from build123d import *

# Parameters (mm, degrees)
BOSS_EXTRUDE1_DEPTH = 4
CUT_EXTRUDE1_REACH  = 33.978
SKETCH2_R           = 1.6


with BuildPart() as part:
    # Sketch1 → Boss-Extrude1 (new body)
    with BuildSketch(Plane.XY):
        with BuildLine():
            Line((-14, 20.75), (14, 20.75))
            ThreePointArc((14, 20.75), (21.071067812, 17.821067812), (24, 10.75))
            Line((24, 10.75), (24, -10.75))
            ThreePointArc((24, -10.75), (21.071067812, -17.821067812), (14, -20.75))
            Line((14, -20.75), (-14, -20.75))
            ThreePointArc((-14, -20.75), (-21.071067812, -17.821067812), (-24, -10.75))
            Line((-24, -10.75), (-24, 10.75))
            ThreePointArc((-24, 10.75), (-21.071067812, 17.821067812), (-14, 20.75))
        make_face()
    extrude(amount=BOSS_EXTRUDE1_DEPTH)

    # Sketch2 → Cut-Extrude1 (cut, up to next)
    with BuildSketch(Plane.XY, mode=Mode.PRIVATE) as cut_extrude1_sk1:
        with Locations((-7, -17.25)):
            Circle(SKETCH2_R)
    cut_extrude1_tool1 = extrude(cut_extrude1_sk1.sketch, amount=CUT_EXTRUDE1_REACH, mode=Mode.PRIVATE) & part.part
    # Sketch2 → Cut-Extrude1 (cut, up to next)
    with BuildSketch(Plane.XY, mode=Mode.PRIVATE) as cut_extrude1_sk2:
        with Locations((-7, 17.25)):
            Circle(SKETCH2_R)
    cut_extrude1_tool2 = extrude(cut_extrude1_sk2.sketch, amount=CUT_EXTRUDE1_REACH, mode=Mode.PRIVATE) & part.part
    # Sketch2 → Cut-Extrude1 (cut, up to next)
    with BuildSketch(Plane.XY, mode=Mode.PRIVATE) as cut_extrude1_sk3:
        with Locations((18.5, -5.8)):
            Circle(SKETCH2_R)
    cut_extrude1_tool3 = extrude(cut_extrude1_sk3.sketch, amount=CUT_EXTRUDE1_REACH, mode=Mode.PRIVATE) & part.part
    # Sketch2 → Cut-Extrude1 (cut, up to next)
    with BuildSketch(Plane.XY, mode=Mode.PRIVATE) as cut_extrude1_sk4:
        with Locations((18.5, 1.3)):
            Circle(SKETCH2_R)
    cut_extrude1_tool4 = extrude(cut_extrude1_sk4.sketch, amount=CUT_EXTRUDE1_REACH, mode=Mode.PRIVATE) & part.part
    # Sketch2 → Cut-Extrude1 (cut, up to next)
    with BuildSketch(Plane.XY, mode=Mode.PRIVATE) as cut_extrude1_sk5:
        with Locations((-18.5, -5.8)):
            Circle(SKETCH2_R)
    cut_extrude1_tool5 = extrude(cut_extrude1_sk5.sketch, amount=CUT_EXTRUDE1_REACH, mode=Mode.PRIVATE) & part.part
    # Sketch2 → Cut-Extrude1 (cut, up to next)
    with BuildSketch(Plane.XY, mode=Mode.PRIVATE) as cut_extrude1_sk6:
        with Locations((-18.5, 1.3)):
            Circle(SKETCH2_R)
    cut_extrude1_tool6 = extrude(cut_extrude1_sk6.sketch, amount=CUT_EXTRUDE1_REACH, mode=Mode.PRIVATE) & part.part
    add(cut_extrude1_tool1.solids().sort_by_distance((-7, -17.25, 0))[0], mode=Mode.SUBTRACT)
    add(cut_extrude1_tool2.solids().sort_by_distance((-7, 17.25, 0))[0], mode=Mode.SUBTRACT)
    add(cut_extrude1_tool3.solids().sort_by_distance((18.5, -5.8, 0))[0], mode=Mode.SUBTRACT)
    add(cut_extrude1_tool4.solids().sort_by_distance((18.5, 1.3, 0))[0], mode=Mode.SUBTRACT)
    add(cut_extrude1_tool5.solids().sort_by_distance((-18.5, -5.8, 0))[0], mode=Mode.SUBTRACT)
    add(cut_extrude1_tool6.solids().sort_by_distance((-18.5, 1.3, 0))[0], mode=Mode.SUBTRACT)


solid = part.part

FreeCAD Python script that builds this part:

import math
import FreeCAD as App
import Part
import Sketcher
from FreeCAD import Vector
Q = App.Units.Quantity

doc = App.newDocument("Part")
body = doc.addObject("PartDesign::Body", "Body")

sketch1 = doc.addObject("Sketcher::SketchObject", "Sketch")
body.addObject(sketch1)
sketch1.AttachmentSupport = (doc.XY_Plane, [""])
sketch1.MapMode = "FlatFace"
sketch1.addGeometry([
    Part.LineSegment(Vector(14, 20.75, 0), Vector(-14, 20.75, 0)),
    Part.ArcOfCircle(Part.Circle(Vector(-14, 10.75, 0), Vector(0, 0, 1), 10), math.radians(90), math.radians(180)),
    Part.LineSegment(Vector(-24, 10.75, 0), Vector(-24, -10.75, 0)),
    Part.ArcOfCircle(Part.Circle(Vector(-14, -10.75, 0), Vector(0, 0, 1), 10), math.radians(180), math.radians(270)),
    Part.LineSegment(Vector(-14, -20.75, 0), Vector(14, -20.75, 0)),
    Part.ArcOfCircle(Part.Circle(Vector(14, -10.75, 0), Vector(0, 0, 1), 10), math.radians(-90), math.radians(0)),
    Part.LineSegment(Vector(24, -10.75, 0), Vector(24, 10.75, 0)),
    Part.ArcOfCircle(Part.Circle(Vector(14, 10.75, 0), Vector(0, 0, 1), 10), math.radians(0), math.radians(90)),
], False)
sketch1.addConstraint([
    Sketcher.Constraint("Tangent", 0, 2, 1, 1),
    Sketcher.Constraint("Tangent", 1, 2, 2, 1),
    Sketcher.Constraint("Tangent", 2, 2, 3, 1),
    Sketcher.Constraint("Tangent", 3, 2, 4, 1),
    Sketcher.Constraint("Tangent", 4, 2, 5, 1),
    Sketcher.Constraint("Tangent", 5, 2, 6, 1),
    Sketcher.Constraint("Tangent", 6, 2, 7, 1),
    Sketcher.Constraint("Tangent", 7, 2, 0, 1),
    Sketcher.Constraint("Horizontal", 0),
    Sketcher.Constraint("Vertical", 2),
    Sketcher.Constraint("Horizontal", 4),
    Sketcher.Constraint("Vertical", 6),
    Sketcher.Constraint("Equal", 1, 3),
    Sketcher.Constraint("Equal", 3, 5),
    Sketcher.Constraint("Equal", 5, 7),
    Sketcher.Constraint("Symmetric", 1, 3, 5, 3, -1, 1),
    Sketcher.Constraint("Radius", 1, Q("10 mm")),
    Sketcher.Constraint("DistanceX", 0, 2, 0, 1, Q("28 mm")),
    Sketcher.Constraint("DistanceY", 2, 2, 2, 1, Q("21.5 mm")),
])
pad1 = doc.addObject("PartDesign::Pad", "Pad")
body.addObject(pad1)
pad1.Profile = sketch1
pad1.Length = 4

sketch2 = doc.addObject("Sketcher::SketchObject", "Sketch001")
body.addObject(sketch2)
sketch2.AttachmentSupport = (doc.XY_Plane, [""])
sketch2.MapMode = "FlatFace"
sketch2.addGeometry(Part.Circle(Vector(-7, -17.25, 0), Vector(0, 0, 1), 1.6), False)
sketch2.addConstraint([
    Sketcher.Constraint("Diameter", 0, Q("3.2 mm")),
    Sketcher.Constraint("DistanceX", 0, 3, -1, 1, Q("7 mm")),
    Sketcher.Constraint("DistanceY", 0, 3, -1, 1, Q("17.25 mm")),
])
pocket1 = doc.addObject("PartDesign::Pocket", "Pocket")
body.addObject(pocket1)
pocket1.Profile = sketch2
pocket1.Type = "UpToFirst"
pocket1.Reversed = True

sketch3 = doc.addObject("Sketcher::SketchObject", "Sketch002")
body.addObject(sketch3)
sketch3.AttachmentSupport = (doc.XY_Plane, [""])
sketch3.MapMode = "FlatFace"
sketch3.addGeometry(Part.Circle(Vector(-7, 17.25, 0), Vector(0, 0, 1), 1.6), False)
sketch3.addConstraint([
    Sketcher.Constraint("Diameter", 0, Q("3.2 mm")),
    Sketcher.Constraint("DistanceX", 0, 3, -1, 1, Q("7 mm")),
    Sketcher.Constraint("DistanceY", -1, 1, 0, 3, Q("17.25 mm")),
])
pocket2 = doc.addObject("PartDesign::Pocket", "Pocket001")
body.addObject(pocket2)
pocket2.Profile = sketch3
pocket2.Type = "UpToFirst"
pocket2.Reversed = True

sketch4 = doc.addObject("Sketcher::SketchObject", "Sketch003")
body.addObject(sketch4)
sketch4.AttachmentSupport = (doc.XY_Plane, [""])
sketch4.MapMode = "FlatFace"
sketch4.addGeometry(Part.Circle(Vector(18.5, -5.8, 0), Vector(0, 0, 1), 1.6), False)
sketch4.addConstraint([
    Sketcher.Constraint("Diameter", 0, Q("3.2 mm")),
    Sketcher.Constraint("DistanceX", -1, 1, 0, 3, Q("18.5 mm")),
    Sketcher.Constraint("DistanceY", 0, 3, -1, 1, Q("5.8 mm")),
])
pocket3 = doc.addObject("PartDesign::Pocket", "Pocket002")
body.addObject(pocket3)
pocket3.Profile = sketch4
pocket3.Type = "UpToFirst"
pocket3.Reversed = True

sketch5 = doc.addObject("Sketcher::SketchObject", "Sketch004")
body.addObject(sketch5)
sketch5.AttachmentSupport = (doc.XY_Plane, [""])
sketch5.MapMode = "FlatFace"
sketch5.addGeometry(Part.Circle(Vector(18.5, 1.3, 0), Vector(0, 0, 1), 1.6), False)
sketch5.addConstraint([
    Sketcher.Constraint("Diameter", 0, Q("3.2 mm")),
    Sketcher.Constraint("DistanceX", -1, 1, 0, 3, Q("18.5 mm")),
    Sketcher.Constraint("DistanceY", -1, 1, 0, 3, Q("1.3 mm")),
])
pocket4 = doc.addObject("PartDesign::Pocket", "Pocket003")
body.addObject(pocket4)
pocket4.Profile = sketch5
pocket4.Type = "UpToFirst"
pocket4.Reversed = True

sketch6 = doc.addObject("Sketcher::SketchObject", "Sketch005")
body.addObject(sketch6)
sketch6.AttachmentSupport = (doc.XY_Plane, [""])
sketch6.MapMode = "FlatFace"
sketch6.addGeometry(Part.Circle(Vector(-18.5, -5.8, 0), Vector(0, 0, 1), 1.6), False)
sketch6.addConstraint([
    Sketcher.Constraint("Diameter", 0, Q("3.2 mm")),
    Sketcher.Constraint("DistanceX", 0, 3, -1, 1, Q("18.5 mm")),
    Sketcher.Constraint("DistanceY", 0, 3, -1, 1, Q("5.8 mm")),
])
pocket5 = doc.addObject("PartDesign::Pocket", "Pocket004")
body.addObject(pocket5)
pocket5.Profile = sketch6
pocket5.Type = "UpToFirst"
pocket5.Reversed = True

sketch7 = doc.addObject("Sketcher::SketchObject", "Sketch006")
body.addObject(sketch7)
sketch7.AttachmentSupport = (doc.XY_Plane, [""])
sketch7.MapMode = "FlatFace"
sketch7.addGeometry(Part.Circle(Vector(-18.5, 1.3, 0), Vector(0, 0, 1), 1.6), False)
sketch7.addConstraint([
    Sketcher.Constraint("Diameter", 0, Q("3.2 mm")),
    Sketcher.Constraint("DistanceX", 0, 3, -1, 1, Q("18.5 mm")),
    Sketcher.Constraint("DistanceY", -1, 1, 0, 3, Q("1.3 mm")),
])
pocket6 = doc.addObject("PartDesign::Pocket", "Pocket005")
body.addObject(pocket6)
pocket6.Profile = sketch7
pocket6.Type = "UpToFirst"
pocket6.Reversed = True

doc.recompute()
